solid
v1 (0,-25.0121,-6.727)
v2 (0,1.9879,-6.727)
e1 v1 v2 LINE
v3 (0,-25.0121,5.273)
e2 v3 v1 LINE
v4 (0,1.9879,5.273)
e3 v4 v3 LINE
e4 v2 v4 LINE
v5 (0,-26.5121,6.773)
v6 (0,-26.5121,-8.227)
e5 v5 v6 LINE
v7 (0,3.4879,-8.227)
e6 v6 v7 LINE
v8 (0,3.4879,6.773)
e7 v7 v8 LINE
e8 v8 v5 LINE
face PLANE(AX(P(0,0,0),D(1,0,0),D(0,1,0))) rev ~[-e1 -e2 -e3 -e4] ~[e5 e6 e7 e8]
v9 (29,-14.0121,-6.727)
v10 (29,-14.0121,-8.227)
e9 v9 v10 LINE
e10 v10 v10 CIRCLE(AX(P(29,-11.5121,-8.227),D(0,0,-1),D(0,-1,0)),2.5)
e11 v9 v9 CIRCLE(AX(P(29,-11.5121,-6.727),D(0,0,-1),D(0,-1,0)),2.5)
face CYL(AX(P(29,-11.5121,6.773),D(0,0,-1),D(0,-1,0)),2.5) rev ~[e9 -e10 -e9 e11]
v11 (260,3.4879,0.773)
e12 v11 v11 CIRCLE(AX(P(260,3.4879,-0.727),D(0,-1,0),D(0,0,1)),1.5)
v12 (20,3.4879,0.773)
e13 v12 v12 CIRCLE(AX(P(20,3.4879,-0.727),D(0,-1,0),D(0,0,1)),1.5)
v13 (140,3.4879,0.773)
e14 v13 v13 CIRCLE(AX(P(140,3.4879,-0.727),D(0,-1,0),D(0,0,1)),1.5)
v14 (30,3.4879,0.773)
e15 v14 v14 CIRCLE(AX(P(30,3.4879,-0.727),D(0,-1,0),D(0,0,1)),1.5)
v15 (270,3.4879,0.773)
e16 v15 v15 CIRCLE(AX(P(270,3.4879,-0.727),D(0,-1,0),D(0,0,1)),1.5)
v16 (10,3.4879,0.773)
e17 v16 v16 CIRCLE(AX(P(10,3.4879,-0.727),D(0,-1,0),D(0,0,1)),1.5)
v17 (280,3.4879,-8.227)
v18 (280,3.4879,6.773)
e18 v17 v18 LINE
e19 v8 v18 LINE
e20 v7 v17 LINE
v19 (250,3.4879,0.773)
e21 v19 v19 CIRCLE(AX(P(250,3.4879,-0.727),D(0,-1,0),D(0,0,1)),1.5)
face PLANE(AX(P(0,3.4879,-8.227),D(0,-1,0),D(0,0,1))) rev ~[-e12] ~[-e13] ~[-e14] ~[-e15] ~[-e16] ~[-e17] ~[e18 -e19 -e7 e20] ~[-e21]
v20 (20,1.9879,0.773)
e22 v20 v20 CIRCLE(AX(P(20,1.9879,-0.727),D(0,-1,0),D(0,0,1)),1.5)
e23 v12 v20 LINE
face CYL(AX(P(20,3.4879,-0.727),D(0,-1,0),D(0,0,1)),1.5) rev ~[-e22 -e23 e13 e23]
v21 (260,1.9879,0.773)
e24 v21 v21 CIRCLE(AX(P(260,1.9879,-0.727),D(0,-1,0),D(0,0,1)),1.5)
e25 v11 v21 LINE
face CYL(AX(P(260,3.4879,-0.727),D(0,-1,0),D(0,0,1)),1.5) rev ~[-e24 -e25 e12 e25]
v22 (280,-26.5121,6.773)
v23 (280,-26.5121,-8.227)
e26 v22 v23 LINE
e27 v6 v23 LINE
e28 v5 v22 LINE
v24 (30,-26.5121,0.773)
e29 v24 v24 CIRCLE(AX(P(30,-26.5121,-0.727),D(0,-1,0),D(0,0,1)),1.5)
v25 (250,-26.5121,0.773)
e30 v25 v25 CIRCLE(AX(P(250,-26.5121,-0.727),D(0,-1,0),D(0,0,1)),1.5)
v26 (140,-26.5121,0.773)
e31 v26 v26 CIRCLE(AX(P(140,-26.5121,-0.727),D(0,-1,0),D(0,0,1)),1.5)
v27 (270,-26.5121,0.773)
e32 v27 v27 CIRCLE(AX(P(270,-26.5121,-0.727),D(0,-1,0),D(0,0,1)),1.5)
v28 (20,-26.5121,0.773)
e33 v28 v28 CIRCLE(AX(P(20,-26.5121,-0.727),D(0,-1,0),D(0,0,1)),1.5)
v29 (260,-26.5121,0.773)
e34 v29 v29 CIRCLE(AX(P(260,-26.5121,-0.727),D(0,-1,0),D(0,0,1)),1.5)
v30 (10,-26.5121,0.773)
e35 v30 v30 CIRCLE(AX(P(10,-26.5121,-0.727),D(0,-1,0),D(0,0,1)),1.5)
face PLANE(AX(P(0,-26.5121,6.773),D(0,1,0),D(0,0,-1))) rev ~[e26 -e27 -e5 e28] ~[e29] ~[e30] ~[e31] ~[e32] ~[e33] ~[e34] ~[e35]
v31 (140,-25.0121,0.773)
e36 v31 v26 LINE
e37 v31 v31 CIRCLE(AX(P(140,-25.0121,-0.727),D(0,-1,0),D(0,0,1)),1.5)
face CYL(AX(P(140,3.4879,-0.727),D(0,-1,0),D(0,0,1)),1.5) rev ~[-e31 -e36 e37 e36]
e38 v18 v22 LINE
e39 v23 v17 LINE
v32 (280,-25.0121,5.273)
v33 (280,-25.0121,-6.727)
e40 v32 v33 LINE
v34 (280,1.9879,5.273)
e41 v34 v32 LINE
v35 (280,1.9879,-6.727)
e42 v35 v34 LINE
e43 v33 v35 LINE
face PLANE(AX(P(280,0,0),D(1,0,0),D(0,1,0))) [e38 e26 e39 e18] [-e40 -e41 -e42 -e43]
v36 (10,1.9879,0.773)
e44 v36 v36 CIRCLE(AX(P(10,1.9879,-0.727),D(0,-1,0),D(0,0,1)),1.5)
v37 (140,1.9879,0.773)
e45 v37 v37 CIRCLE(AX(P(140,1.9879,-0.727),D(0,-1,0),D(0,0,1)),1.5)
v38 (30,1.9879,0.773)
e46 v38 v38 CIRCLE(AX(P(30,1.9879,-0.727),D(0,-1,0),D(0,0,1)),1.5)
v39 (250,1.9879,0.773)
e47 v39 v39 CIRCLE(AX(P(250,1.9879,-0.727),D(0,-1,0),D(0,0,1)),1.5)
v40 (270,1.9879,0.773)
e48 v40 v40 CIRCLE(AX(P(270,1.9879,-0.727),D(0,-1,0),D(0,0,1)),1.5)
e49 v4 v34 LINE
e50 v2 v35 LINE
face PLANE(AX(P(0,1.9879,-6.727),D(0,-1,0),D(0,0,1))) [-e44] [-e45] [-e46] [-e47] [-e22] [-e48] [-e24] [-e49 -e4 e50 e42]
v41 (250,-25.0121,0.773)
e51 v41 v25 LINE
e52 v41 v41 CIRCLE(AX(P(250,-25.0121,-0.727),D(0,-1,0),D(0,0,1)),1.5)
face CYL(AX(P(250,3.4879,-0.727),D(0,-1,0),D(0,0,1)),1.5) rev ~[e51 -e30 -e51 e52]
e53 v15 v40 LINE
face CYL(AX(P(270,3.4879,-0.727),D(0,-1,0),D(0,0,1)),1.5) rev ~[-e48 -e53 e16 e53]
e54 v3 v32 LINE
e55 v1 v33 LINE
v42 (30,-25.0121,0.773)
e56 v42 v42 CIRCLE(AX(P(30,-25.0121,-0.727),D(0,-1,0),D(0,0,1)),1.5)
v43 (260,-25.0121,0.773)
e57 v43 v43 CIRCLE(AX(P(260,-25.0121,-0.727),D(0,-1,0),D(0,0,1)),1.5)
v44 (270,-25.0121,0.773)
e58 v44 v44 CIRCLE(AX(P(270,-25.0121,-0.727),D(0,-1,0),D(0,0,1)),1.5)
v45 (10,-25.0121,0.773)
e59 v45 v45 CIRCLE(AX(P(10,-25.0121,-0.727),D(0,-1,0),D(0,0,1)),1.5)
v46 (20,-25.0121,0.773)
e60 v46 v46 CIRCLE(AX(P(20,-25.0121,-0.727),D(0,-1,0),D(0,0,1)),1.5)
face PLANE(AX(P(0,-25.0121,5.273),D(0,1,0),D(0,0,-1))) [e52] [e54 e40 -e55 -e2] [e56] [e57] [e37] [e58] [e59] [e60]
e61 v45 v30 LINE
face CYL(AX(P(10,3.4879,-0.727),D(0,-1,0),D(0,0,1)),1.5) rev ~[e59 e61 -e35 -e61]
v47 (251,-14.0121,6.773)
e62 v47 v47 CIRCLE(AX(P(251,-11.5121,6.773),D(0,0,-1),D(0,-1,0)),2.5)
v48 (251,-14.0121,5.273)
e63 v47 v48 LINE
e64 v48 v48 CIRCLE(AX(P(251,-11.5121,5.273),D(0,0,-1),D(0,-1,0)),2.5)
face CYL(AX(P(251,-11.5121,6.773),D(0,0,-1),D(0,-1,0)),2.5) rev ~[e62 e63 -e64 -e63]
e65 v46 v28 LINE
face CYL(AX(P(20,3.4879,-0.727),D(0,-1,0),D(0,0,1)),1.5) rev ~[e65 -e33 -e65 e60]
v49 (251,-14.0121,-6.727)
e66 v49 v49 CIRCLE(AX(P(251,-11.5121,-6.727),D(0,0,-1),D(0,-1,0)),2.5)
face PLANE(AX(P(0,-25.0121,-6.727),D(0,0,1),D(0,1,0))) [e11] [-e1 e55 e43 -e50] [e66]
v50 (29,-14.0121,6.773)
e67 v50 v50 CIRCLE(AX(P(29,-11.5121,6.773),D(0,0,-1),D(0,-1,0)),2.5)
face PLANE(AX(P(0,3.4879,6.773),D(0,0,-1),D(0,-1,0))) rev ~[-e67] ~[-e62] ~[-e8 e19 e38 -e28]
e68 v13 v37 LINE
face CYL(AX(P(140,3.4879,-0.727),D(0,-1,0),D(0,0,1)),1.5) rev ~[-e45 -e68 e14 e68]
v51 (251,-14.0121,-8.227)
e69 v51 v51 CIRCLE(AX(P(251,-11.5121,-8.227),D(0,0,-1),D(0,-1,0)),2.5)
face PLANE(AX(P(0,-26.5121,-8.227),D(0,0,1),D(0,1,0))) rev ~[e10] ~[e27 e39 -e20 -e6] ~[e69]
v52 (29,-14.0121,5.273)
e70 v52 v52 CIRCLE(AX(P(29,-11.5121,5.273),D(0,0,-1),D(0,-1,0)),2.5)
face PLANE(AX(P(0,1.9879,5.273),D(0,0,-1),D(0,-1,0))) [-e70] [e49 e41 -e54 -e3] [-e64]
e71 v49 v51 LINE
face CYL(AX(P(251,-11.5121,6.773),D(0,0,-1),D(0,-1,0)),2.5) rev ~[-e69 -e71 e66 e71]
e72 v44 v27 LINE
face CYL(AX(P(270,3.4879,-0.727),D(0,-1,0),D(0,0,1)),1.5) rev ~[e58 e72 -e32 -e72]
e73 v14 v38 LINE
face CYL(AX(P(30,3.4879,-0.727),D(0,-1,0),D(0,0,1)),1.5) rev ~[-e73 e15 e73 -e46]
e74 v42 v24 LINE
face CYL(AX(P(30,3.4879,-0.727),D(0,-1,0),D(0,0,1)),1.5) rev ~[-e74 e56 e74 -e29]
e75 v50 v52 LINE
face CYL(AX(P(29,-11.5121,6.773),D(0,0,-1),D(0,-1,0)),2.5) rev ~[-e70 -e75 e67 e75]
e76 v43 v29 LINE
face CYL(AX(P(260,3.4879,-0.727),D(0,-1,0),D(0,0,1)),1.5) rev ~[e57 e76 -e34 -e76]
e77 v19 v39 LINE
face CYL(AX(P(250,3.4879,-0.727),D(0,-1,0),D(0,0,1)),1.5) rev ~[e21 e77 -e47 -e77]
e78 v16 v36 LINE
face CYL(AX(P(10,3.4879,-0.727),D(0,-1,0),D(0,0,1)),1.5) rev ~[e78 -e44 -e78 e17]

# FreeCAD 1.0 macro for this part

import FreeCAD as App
import Part
import Sketcher
from FreeCAD import Vector
Q = App.Units.Quantity

doc = App.newDocument("Part")
body = doc.addObject("PartDesign::Body", "Body")

# Sketch on YZ plane
sketch1 = body.newObject("Sketcher::SketchObject", "Sketch")
sketch1.AttachmentSupport = (doc.getObject("YZ_Plane"), [""])
sketch1.MapMode = "FlatFace"
sketch1.addGeometry([
    Part.LineSegment(Vector(3, -8, 0), Vector(3, 7, 0)),
    Part.LineSegment(Vector(3, 7, 0), Vector(-27, 7, 0)),
    Part.LineSegment(Vector(-27, 7, 0), Vector(-27, -8, 0)),
    Part.LineSegment(Vector(-27, -8, 0), Vector(3, -8, 0)),
], False)
sketch1.addConstraint([
    Sketcher.Constraint("Coincident", 0, 2, 1, 1),
    Sketcher.Constraint("Coincident", 1, 2, 2, 1),
    Sketcher.Constraint("Coincident", 2, 2, 3, 1),
    Sketcher.Constraint("Coincident", 3, 2, 0, 1),
    Sketcher.Constraint("Vertical", 0),
    Sketcher.Constraint("Horizontal", 1),
    Sketcher.Constraint("Vertical", 2),
    Sketcher.Constraint("Horizontal", 3),
    Sketcher.Constraint("DistanceX", 1, 2, 1, 1, Q("30 mm")),
    Sketcher.Constraint("DistanceY", 0, 1, 0, 2, Q("15 mm")),
    Sketcher.Constraint("DistanceX", -1, 1, 0, 2, Q("3.488 mm")),
    Sketcher.Constraint("DistanceY", -1, 1, 0, 2, Q("6.773 mm")),
])
pad1 = body.newObject("PartDesign::Pad", "Pad")
pad1.Profile = sketch1
pad1.Length = 280

# Sketch on XZ plane
sketch2 = body.newObject("Sketcher::SketchObject", "Sketch001")
sketch2.AttachmentSupport = (doc.getObject("XZ_Plane"), [""])
sketch2.MapMode = "FlatFace"
sketch2.AttachmentOffset = App.Placement(Vector(0, 0, -3.4879), App.Rotation())
sketch2.addGeometry([
    Part.Circle(Vector(270, -0.7, 0), Vector(0, 0, 1), 1.5),  # 0
    Part.Circle(Vector(260, -0.7, 0), Vector(0, 0, 1), 1.5),  # 1
    Part.Circle(Vector(250, -0.7, 0), Vector(0, 0, 1), 1.5),  # 2
    Part.Circle(Vector(10, -0.7, 0), Vector(0, 0, 1), 1.5),  # 3
    Part.Circle(Vector(20, -0.7, 0), Vector(0, 0, 1), 1.5),  # 4
    Part.Circle(Vector(30, -0.7, 0), Vector(0, 0, 1), 1.5),  # 5
], False)
sketch2.addConstraint([
    Sketcher.Constraint("Equal", 0, 1),
    Sketcher.Constraint("Equal", 1, 2),
    Sketcher.Constraint("Equal", 2, 3),
    Sketcher.Constraint("Equal", 3, 4),
    Sketcher.Constraint("Equal", 4, 5),
    Sketcher.Constraint("Horizontal", 0, 3, 1, 3),
    Sketcher.Constraint("Horizontal", 1, 3, 2, 3),
    Sketcher.Constraint("Horizontal", 2, 3, 3, 3),
    Sketcher.Constraint("Horizontal", 3, 3, 4, 3),
    Sketcher.Constraint("Horizontal", 4, 3, 5, 3),
    Sketcher.Constraint("Diameter", 0, Q("3 mm")),
    Sketcher.Constraint("DistanceX", -1, 1, 0, 3, Q("270 mm")),
    Sketcher.Constraint("DistanceX", -1, 1, 1, 3, Q("260 mm")),
    Sketcher.Constraint("DistanceX", -1, 1, 2, 3, Q("250 mm")),
    Sketcher.Constraint("DistanceX", -1, 1, 3, 3, Q("10 mm")),
    Sketcher.Constraint("DistanceX", -1, 1, 4, 3, Q("20 mm")),
    Sketcher.Constraint("DistanceX", -1, 1, 5, 3, Q("30 mm")),
    Sketcher.Constraint("DistanceY", 0, 3, -1, 1, Q("0.727 mm")),
])
doc.recompute()
hole = body.newObject("PartDesign::Hole", "Hole")
hole.Profile = sketch2
hole.ThreadType = "None"
hole.Diameter = 3
hole.DepthType = "Dimension"
hole.Depth = 30
hole.DrillPoint = "Flat"
hole.Reversed = True

# Sketch on YZ plane
sketch3 = body.newObject("Sketcher::SketchObject", "Sketch002")
sketch3.AttachmentSupport = (doc.getObject("YZ_Plane"), [""])
sketch3.MapMode = "FlatFace"
sketch3.addGeometry([
    Part.LineSegment(Vector(2, 5, 0), Vector(2, -7, 0)),
    Part.LineSegment(Vector(2, -7, 0), Vector(-25, -7, 0)),
    Part.LineSegment(Vector(-25, -7, 0), Vector(-25, 5, 0)),
    Part.LineSegment(Vector(-25, 5, 0), Vector(2, 5, 0)),
], False)
sketch3.addConstraint([
    Sketcher.Constraint("Coincident", 0, 2, 1, 1),
    Sketcher.Constraint("Coincident", 1, 2, 2, 1),
    Sketcher.Constraint("Coincident", 2, 2, 3, 1),
    Sketcher.Constraint("Coincident", 3, 2, 0, 1),
    Sketcher.Constraint("Vertical", 0),
    Sketcher.Constraint("Horizontal", 1),
    Sketcher.Constraint("Vertical", 2),
    Sketcher.Constraint("Horizontal", 3),
    Sketcher.Constraint("DistanceX", 1, 2, 1, 1, Q("27 mm")),
    Sketcher.Constraint("DistanceY", 0, 2, 0, 1, Q("12 mm")),
    Sketcher.Constraint("DistanceX", -1, 1, 0, 2, Q("1.988 mm")),
    Sketcher.Constraint("DistanceY", 0, 2, -1, 1, Q("6.727 mm")),
])
pocket1 = body.newObject("PartDesign::Pocket", "Pocket")
pocket1.Profile = sketch3
pocket1.Length = 280
pocket1.Reversed = True

# Sketch on XZ plane
sketch4 = body.newObject("Sketcher::SketchObject", "Sketch003")
sketch4.AttachmentSupport = (doc.getObject("XZ_Plane"), [""])
sketch4.MapMode = "FlatFace"
sketch4.AttachmentOffset = App.Placement(Vector(0, 0, -3.4879), App.Rotation())
sketch4.addGeometry(Part.Circle(Vector(140, -0.7, 0), Vector(0, 0, 1), 1.5), False)
sketch4.addConstraint([
    Sketcher.Constraint("Diameter", 0, Q("3 mm")),
    Sketcher.Constraint("DistanceX", -1, 1, 0, 3, Q("140 mm")),
    Sketcher.Constraint("DistanceY", 0, 3, -1, 1, Q("0.727 mm")),
])
doc.recompute()
hole2 = body.newObject("PartDesign::Hole", "Hole001")
hole2.Profile = sketch4
hole2.ThreadType = "None"
hole2.Diameter = 3
hole2.DepthType = "Dimension"
hole2.Depth = 30
hole2.DrillPoint = "Flat"
hole2.Reversed = True

# Sketch on XY plane
sketch5 = body.newObject("Sketcher::SketchObject", "Sketch004")
sketch5.AttachmentSupport = (doc.getObject("XY_Plane"), [""])
sketch5.MapMode = "FlatFace"
sketch5.AttachmentOffset = App.Placement(Vector(0, 0, 6.773), App.Rotation())
sketch5.addGeometry(Part.Circle(Vector(29, -11.5, 0), Vector(0, 0, 1), 2.5), False)
sketch5.addConstraint([
    Sketcher.Constraint("Diameter", 0, Q("5 mm")),
    Sketcher.Constraint("DistanceX", -1, 1, 0, 3, Q("29 mm")),
    Sketcher.Constraint("DistanceY", 0, 3, -1, 1, Q("11.512 mm")),
])
doc.recompute()
hole3 = body.newObject("PartDesign::Hole", "Hole002")
hole3.Profile = sketch5
hole3.ThreadType = "None"
hole3.Diameter = 5
hole3.DepthType = "Dimension"
hole3.Depth = 15
hole3.DrillPoint = "Flat"

# Sketch on XY plane
sketch6 = body.newObject("Sketcher::SketchObject", "Sketch005")
sketch6.AttachmentSupport = (doc.getObject("XY_Plane"), [""])
sketch6.MapMode = "FlatFace"
sketch6.AttachmentOffset = App.Placement(Vector(0, 0, 6.773), App.Rotation())
sketch6.addGeometry(Part.Circle(Vector(251, -11.5, 0), Vector(0, 0, 1), 2.5), False)
sketch6.addConstraint([
    Sketcher.Constraint("Diameter", 0, Q("5 mm")),
    Sketcher.Constraint("DistanceX", -1, 1, 0, 3, Q("251 mm")),
    Sketcher.Constraint("DistanceY", 0, 3, -1, 1, Q("11.512 mm")),
])
doc.recompute()
hole4 = body.newObject("PartDesign::Hole", "Hole003")
hole4.Profile = sketch6
hole4.ThreadType = "None"
hole4.Diameter = 5
hole4.DepthType = "Dimension"
hole4.Depth = 15
hole4.DrillPoint = "Flat"

doc.recompute()
